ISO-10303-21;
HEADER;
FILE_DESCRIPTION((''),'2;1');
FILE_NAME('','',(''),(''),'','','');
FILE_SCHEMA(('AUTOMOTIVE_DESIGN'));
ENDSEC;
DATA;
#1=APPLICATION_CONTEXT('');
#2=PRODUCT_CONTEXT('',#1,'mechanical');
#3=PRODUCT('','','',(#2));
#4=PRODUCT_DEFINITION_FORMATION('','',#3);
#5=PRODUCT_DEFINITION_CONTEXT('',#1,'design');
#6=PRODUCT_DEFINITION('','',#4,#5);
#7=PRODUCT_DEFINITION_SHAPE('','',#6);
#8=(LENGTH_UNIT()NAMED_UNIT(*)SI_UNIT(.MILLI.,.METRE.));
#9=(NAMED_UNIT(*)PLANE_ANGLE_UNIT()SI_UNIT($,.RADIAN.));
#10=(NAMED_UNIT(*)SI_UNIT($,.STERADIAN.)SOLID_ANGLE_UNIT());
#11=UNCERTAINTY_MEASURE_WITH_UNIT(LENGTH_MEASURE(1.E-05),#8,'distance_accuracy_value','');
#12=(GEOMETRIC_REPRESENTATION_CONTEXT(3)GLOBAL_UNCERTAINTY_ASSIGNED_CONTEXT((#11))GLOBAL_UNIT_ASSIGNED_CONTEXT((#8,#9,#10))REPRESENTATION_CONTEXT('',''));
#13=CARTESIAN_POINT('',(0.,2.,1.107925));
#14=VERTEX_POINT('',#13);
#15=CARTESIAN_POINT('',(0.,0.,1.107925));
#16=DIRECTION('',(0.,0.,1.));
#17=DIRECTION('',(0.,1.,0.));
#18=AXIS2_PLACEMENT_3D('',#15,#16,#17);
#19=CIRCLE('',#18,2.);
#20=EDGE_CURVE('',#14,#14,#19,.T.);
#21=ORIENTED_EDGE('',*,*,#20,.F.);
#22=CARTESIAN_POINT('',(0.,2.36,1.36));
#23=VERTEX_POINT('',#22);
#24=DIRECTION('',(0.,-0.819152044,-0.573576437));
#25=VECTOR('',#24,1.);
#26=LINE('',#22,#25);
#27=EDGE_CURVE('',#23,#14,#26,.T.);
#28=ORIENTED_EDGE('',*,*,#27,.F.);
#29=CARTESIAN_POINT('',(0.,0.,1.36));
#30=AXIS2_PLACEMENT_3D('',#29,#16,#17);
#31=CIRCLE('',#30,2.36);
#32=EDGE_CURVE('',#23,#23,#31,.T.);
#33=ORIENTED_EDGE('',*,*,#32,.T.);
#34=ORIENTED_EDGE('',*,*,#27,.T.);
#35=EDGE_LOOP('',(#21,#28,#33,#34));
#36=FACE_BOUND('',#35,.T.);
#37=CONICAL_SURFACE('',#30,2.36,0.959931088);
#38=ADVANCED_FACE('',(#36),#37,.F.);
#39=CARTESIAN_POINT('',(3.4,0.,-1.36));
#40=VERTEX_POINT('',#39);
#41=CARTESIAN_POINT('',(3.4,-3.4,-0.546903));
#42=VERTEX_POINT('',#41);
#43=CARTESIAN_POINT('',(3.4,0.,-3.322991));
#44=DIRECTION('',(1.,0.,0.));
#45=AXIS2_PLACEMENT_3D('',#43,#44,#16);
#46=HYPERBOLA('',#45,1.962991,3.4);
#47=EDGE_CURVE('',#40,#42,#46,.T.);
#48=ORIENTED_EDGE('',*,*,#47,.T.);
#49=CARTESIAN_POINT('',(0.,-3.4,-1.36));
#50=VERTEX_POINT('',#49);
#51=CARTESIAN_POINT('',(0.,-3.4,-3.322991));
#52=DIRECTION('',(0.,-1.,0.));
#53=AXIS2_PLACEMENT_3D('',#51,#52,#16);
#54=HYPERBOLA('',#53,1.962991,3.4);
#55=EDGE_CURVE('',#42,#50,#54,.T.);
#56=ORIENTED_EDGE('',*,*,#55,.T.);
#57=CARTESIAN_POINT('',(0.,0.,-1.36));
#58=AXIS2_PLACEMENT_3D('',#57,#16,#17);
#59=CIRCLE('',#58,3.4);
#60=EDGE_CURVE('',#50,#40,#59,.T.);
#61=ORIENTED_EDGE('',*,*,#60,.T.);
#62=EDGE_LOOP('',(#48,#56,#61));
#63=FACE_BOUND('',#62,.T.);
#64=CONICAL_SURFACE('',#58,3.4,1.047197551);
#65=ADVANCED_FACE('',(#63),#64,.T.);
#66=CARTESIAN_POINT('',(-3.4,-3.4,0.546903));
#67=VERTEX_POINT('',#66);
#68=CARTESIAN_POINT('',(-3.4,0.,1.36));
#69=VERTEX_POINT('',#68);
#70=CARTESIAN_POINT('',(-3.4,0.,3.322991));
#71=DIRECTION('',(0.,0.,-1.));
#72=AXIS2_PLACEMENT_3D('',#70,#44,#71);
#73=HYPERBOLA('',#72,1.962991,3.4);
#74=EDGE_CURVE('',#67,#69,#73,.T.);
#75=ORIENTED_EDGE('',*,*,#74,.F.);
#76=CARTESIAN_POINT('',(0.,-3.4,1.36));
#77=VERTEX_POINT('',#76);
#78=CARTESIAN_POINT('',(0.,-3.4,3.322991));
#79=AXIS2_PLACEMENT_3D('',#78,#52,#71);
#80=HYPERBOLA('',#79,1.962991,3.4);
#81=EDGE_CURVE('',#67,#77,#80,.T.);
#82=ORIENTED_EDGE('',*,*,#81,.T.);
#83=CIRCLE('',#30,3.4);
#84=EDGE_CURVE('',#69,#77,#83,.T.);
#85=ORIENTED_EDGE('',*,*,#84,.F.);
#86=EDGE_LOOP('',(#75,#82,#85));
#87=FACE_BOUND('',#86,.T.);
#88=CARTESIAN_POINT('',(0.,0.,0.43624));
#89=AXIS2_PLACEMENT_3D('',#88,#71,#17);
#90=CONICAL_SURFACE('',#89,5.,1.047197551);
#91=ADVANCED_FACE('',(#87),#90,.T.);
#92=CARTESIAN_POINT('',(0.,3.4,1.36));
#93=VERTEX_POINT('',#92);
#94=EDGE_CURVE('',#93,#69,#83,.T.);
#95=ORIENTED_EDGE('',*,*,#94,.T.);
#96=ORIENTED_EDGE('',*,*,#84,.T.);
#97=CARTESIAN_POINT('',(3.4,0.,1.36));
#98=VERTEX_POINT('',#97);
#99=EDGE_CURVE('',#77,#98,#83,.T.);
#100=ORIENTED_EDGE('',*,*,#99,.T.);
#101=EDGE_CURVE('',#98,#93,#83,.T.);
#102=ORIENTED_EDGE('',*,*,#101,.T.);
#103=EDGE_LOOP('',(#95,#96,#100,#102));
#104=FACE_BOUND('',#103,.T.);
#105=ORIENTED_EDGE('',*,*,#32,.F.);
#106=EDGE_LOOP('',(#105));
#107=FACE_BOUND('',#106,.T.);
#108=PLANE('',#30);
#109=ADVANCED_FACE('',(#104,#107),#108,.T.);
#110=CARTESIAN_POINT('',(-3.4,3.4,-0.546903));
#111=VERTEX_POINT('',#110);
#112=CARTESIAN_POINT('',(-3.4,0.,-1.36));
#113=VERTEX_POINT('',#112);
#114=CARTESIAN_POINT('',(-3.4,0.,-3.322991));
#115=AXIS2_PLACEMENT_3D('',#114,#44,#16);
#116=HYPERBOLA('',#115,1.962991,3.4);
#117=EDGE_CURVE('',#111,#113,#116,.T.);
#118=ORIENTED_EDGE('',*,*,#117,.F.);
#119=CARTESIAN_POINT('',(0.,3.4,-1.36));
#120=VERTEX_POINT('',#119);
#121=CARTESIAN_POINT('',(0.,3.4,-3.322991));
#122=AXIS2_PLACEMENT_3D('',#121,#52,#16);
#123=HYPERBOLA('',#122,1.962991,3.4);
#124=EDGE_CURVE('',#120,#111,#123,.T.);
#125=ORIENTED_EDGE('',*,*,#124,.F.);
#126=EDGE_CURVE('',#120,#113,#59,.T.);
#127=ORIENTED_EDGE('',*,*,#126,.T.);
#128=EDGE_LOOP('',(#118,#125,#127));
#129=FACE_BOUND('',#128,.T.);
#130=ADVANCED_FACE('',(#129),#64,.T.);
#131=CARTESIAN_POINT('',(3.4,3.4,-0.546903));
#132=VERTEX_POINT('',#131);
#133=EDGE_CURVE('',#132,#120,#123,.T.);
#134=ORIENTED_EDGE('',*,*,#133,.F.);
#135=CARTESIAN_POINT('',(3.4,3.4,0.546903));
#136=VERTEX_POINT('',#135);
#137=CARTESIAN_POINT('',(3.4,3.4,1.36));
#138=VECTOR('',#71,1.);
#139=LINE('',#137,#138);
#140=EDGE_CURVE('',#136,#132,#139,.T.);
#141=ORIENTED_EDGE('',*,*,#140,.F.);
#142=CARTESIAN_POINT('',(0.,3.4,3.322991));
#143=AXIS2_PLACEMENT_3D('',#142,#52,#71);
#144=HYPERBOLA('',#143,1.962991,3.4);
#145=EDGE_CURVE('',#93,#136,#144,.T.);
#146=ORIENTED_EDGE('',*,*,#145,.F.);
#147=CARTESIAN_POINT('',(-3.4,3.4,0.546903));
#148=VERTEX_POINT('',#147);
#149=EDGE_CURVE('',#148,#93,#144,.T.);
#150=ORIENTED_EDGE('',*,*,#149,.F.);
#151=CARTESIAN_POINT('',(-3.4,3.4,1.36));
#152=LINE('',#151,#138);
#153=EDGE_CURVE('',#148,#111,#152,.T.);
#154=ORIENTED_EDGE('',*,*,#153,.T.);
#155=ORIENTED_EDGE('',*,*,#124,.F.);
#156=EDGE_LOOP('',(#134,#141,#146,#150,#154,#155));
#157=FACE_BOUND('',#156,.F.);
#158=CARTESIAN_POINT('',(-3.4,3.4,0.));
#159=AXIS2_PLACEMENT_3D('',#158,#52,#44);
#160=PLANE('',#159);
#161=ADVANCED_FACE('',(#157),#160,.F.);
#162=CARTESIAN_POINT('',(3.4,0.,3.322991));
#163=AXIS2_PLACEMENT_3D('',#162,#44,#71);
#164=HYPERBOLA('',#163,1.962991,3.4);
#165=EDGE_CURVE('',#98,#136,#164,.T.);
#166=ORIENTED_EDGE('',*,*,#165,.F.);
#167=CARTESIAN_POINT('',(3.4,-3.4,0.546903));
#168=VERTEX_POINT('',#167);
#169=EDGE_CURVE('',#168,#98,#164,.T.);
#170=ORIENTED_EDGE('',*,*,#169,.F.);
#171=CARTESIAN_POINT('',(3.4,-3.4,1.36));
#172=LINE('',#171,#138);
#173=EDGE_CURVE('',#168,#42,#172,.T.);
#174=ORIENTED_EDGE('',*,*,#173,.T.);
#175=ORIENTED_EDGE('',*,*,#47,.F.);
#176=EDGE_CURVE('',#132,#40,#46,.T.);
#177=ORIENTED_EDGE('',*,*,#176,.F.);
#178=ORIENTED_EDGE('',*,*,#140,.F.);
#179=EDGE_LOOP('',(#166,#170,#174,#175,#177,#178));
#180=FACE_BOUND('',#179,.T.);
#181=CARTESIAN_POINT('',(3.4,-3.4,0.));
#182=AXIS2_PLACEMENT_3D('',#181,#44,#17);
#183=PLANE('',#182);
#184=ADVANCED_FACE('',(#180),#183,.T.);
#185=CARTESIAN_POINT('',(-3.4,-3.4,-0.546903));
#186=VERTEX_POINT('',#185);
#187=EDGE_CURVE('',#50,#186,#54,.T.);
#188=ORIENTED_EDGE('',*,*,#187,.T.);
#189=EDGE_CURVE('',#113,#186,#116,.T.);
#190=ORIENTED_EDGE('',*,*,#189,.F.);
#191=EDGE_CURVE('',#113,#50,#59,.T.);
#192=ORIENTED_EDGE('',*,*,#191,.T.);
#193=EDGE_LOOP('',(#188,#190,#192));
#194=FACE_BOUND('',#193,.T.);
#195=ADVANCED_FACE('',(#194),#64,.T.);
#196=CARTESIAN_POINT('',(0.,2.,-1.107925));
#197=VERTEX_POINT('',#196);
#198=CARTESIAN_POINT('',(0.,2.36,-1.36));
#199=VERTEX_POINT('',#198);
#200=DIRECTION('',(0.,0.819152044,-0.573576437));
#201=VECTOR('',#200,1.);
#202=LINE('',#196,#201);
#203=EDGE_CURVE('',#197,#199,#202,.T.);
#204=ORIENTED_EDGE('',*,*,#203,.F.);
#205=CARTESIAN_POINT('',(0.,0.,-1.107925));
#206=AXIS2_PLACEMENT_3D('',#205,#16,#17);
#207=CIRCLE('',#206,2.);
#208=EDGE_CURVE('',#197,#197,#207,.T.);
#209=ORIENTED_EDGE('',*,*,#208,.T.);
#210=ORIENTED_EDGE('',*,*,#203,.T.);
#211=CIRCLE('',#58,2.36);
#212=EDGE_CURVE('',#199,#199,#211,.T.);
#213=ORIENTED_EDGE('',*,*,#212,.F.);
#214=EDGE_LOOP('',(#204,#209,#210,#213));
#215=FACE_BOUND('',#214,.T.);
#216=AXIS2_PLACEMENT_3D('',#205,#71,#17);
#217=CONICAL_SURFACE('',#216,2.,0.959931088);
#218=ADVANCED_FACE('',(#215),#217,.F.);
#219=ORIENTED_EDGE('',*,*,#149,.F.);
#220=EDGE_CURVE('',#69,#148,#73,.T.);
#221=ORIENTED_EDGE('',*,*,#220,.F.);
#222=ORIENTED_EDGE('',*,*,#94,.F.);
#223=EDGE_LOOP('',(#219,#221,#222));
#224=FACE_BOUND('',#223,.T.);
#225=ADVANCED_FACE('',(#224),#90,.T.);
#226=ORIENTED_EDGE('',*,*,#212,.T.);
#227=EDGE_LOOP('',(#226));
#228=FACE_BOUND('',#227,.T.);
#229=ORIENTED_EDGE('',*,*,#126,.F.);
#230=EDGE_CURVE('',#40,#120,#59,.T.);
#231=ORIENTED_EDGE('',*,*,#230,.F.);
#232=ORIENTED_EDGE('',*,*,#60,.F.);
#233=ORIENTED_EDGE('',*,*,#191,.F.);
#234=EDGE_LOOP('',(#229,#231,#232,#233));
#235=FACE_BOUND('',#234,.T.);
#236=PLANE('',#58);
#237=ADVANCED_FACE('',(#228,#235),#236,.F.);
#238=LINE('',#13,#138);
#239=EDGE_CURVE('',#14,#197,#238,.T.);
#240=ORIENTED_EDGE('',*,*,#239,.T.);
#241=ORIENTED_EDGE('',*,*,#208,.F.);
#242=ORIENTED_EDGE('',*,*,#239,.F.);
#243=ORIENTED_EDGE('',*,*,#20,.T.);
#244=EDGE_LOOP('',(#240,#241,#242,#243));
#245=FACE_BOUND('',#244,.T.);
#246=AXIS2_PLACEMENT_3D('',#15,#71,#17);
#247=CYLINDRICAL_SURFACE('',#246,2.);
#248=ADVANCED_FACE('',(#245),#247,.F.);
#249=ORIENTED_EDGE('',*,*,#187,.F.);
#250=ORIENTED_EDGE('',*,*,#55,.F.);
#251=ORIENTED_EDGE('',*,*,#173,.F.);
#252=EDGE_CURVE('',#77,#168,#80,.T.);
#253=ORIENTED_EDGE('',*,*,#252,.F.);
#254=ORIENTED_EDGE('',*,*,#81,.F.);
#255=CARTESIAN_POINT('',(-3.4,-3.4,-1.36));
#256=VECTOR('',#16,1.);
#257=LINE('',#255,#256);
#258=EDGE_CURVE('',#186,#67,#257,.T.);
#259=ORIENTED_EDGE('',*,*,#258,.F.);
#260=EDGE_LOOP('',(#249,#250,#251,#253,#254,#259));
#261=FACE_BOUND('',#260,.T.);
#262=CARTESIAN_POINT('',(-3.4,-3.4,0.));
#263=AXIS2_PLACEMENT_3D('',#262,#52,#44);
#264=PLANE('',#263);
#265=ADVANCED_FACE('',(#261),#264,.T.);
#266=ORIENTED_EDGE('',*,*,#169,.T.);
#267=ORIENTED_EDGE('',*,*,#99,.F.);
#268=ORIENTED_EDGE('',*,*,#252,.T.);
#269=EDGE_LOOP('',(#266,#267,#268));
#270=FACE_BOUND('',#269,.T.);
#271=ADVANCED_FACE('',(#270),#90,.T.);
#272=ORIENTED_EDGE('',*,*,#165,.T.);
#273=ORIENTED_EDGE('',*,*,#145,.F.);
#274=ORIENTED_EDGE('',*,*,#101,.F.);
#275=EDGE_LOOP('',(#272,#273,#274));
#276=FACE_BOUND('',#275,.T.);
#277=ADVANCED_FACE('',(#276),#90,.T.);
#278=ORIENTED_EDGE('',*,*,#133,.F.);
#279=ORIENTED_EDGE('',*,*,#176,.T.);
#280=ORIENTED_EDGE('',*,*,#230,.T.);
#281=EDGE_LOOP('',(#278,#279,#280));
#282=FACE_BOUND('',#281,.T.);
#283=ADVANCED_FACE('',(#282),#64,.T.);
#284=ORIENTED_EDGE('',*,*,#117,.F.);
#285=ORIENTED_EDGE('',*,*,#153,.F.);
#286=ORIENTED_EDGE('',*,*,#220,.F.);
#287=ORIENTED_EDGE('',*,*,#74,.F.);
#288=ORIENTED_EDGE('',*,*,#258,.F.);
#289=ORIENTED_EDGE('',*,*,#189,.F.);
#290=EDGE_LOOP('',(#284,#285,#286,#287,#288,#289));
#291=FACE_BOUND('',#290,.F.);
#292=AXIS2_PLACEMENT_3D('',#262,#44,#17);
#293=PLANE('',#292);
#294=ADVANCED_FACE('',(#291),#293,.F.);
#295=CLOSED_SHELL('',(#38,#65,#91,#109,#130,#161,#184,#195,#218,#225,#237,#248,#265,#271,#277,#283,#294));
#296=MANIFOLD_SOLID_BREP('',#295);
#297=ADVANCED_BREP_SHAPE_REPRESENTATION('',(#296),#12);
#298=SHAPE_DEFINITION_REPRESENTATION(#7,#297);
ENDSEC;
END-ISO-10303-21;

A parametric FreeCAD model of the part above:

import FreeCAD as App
import Part
import Sketcher
Q = App.Units.Quantity

doc = App.newDocument("Part")
body = doc.addObject("PartDesign::Body", "Body")

sketch1 = doc.addObject("Sketcher::SketchObject", "Sketch")
body.addObject(sketch1)
sketch1.AttachmentSupport = (doc.YZ_Plane, [""])
sketch1.MapMode = "FlatFace"
sketch1.addGeometry([
    Part.LineSegment(App.Vector(5, -0.44, 0), App.Vector(5, 0.44, 0)),
    Part.LineSegment(App.Vector(5, 0.44, 0), App.Vector(3.4, 1.36, 0)),
    Part.LineSegment(App.Vector(3.4, 1.36, 0), App.Vector(2.36, 1.36, 0)),
    Part.LineSegment(App.Vector(2.36, 1.36, 0), App.Vector(2, 1.11, 0)),
    Part.LineSegment(App.Vector(2, 1.11, 0), App.Vector(2, -1.11, 0)),
    Part.LineSegment(App.Vector(2, -1.11, 0), App.Vector(2.36, -1.36, 0)),
    Part.LineSegment(App.Vector(2.36, -1.36, 0), App.Vector(3.4, -1.36, 0)),
    Part.LineSegment(App.Vector(3.4, -1.36, 0), App.Vector(5, -0.44, 0)),
], False)
sketch1.addConstraint([
    Sketcher.Constraint("Coincident", 0, 2, 1, 1),
    Sketcher.Constraint("Coincident", 1, 2, 2, 1),
    Sketcher.Constraint("Coincident", 2, 2, 3, 1),
    Sketcher.Constraint("Coincident", 3, 2, 4, 1),
    Sketcher.Constraint("Coincident", 4, 2, 5, 1),
    Sketcher.Constraint("Coincident", 5, 2, 6, 1),
    Sketcher.Constraint("Coincident", 6, 2, 7, 1),
    Sketcher.Constraint("Coincident", 7, 2, 0, 1),
    Sketcher.Constraint("Vertical", 0),
    Sketcher.Constraint("Horizontal", 2),
    Sketcher.Constraint("Vertical", 4),
    Sketcher.Constraint("Horizontal", 6),
    Sketcher.Constraint("Symmetric", 2, 2, 5, 2, -1),
    Sketcher.Constraint("Vertical", 1, 2, 6, 2),
    Sketcher.Constraint("Equal", 3, 5),
    Sketcher.Constraint("Equal", 1, 7),
    Sketcher.Constraint("Angle", 1, Q("150 deg")),
    Sketcher.Constraint("Angle", 3, Q("-145 deg")),
    Sketcher.Constraint("DistanceX", -1, 1, 0, 2, Q("5 mm")),
    Sketcher.Constraint("DistanceX", -1, 1, 3, 2, Q("2 mm")),
    Sketcher.Constraint("DistanceX", 2, 2, 2, 1, Q("1.04 mm")),
    Sketcher.Constraint("DistanceX", -1, 1, 1, 2, Q("3.4 mm")),
    Sketcher.Constraint("DistanceY", -1, 1, 1, 2, Q("1.36 mm")),
])
revolution = doc.addObject("PartDesign::Revolution", "Revolution")
body.addObject(revolution)
revolution.Profile = sketch1
revolution.ReferenceAxis = (sketch1, ["V_Axis"])
revolution.Angle = 360

sketch2 = doc.addObject("Sketcher::SketchObject", "Sketch001")
body.addObject(sketch2)
sketch2.AttachmentSupport = (doc.XY_Plane, [""])
sketch2.MapMode = "FlatFace"
sketch2.addGeometry([
    Part.LineSegment(App.Vector(-7, 7, 0), App.Vector(-7, -7, 0)),
    Part.LineSegment(App.Vector(-7, -7, 0), App.Vector(7, -7, 0)),
    Part.LineSegment(App.Vector(7, -7, 0), App.Vector(7, 7, 0)),
    Part.LineSegment(App.Vector(7, 7, 0), App.Vector(-7, 7, 0)),
    Part.LineSegment(App.Vector(3, -3, 0), App.Vector(-3, -3, 0)),
    Part.LineSegment(App.Vector(-3, -3, 0), App.Vector(-3, 3, 0)),
    Part.LineSegment(App.Vector(-3, 3, 0), App.Vector(3, 3, 0)),
    Part.LineSegment(App.Vector(3, 3, 0), App.Vector(3, -3, 0)),
], False)
sketch2.addConstraint([
    Sketcher.Constraint("Coincident", 0, 2, 1, 1),
    Sketcher.Constraint("Coincident", 1, 2, 2, 1),
    Sketcher.Constraint("Coincident", 2, 2, 3, 1),
    Sketcher.Constraint("Coincident", 3, 2, 0, 1),
    Sketcher.Constraint("Coincident", 4, 2, 5, 1),
    Sketcher.Constraint("Coincident", 5, 2, 6, 1),
    Sketcher.Constraint("Coincident", 6, 2, 7, 1),
    Sketcher.Constraint("Coincident", 7, 2, 4, 1),
    Sketcher.Constraint("Vertical", 0),
    Sketcher.Constraint("Horizontal", 1),
    Sketcher.Constraint("Vertical", 2),
    Sketcher.Constraint("Horizontal", 3),
    Sketcher.Constraint("Horizontal", 4),
    Sketcher.Constraint("Vertical", 5),
    Sketcher.Constraint("Horizontal", 6),
    Sketcher.Constraint("Vertical", 7),
    Sketcher.Constraint("Symmetric", 0, 2, 2, 2, -1, 1),
    Sketcher.Constraint("Symmetric", 4, 2, 6, 2, -1, 1),
    Sketcher.Constraint("Equal", 3, 0),
    Sketcher.Constraint("Equal", 6, 5),
    Sketcher.Constraint("DistanceX", 4, 2, 4, 1, Q("6.8 mm")),
    Sketcher.Constraint("DistanceX", 1, 1, 1, 2, Q("14.88 mm")),
])
pocket1 = doc.addObject("PartDesign::Pocket", "Pocket")
body.addObject(pocket1)
pocket1.Profile = sketch2
pocket1.Length = 2.72
pocket1.Midplane = True

doc.recompute()
